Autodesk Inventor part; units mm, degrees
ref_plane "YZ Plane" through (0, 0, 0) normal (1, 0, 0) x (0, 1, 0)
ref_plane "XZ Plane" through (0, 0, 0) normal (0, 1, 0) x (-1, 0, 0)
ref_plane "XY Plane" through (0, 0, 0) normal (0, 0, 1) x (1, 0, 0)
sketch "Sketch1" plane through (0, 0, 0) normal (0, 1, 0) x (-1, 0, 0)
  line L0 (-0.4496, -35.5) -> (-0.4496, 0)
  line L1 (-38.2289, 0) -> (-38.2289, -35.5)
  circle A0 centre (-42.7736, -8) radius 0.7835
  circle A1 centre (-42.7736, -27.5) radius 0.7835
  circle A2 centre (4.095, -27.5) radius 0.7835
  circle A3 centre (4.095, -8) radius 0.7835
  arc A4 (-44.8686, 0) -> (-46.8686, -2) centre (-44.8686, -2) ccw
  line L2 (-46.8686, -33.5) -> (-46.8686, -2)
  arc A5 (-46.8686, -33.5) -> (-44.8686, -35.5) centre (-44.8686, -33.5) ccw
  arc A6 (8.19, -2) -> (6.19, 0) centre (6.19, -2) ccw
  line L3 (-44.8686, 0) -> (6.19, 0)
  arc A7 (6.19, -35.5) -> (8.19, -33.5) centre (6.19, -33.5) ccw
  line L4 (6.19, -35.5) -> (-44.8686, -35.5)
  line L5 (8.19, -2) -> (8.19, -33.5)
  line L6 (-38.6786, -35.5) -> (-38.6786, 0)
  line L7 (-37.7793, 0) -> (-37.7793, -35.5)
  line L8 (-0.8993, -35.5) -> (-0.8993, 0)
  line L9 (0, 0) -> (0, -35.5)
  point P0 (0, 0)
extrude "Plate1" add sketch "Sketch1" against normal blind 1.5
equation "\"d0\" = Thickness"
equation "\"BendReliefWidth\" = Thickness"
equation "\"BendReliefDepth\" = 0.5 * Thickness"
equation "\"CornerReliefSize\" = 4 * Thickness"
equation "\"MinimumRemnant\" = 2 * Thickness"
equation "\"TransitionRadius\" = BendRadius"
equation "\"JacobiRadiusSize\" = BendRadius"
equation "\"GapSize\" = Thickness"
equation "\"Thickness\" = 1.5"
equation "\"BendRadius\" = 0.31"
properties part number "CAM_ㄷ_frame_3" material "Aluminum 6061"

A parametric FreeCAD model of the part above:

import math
import FreeCAD as App
import Part
import Sketcher
Q = App.Units.Quantity

doc = App.newDocument("Part")
body = doc.addObject("PartDesign::Body", "Body")

# Sketch on XZ plane
sketch1 = doc.addObject("Sketcher::SketchObject", "Sketch")
body.addObject(sketch1)
sketch1.AttachmentSupport = (doc.XZ_Plane, [""])
sketch1.MapMode = "FlatFace"
sketch1.addGeometry([
    Part.ArcOfCircle(Part.Circle(App.Vector(-6.2, -33.5, 0), App.Vector(0, 0, 1), 2), math.radians(180), math.radians(270)),  # 0
    Part.LineSegment(App.Vector(-8.2, -33.5, 0), App.Vector(-8.2, -2, 0)),  # 1
    Part.ArcOfCircle(Part.Circle(App.Vector(-6.2, -2, 0), App.Vector(0, 0, 1), 2), math.radians(90), math.radians(180)),  # 2
    Part.LineSegment(App.Vector(-6.2, 0, 0), App.Vector(44.9, 0, 0)),  # 3
    Part.ArcOfCircle(Part.Circle(App.Vector(44.9, -2, 0), App.Vector(0, 0, 1), 2), math.radians(0), math.radians(90)),  # 4
    Part.LineSegment(App.Vector(46.9, -2, 0), App.Vector(46.9, -33.5, 0)),  # 5
    Part.ArcOfCircle(Part.Circle(App.Vector(44.9, -33.5, 0), App.Vector(0, 0, 1), 2), math.radians(-90), math.radians(0)),  # 6
    Part.LineSegment(App.Vector(44.9, -35.5, 0), App.Vector(-6.2, -35.5, 0)),  # 7
    Part.Circle(App.Vector(-4.1, -8, 0), App.Vector(0, 0, 1), 0.8),  # 8
    Part.Circle(App.Vector(-4.1, -27.5, 0), App.Vector(0, 0, 1), 0.8),  # 9
    Part.Circle(App.Vector(42.8, -8, 0), App.Vector(0, 0, 1), 0.8),  # 10
    Part.Circle(App.Vector(42.8, -27.5, 0), App.Vector(0, 0, 1), 0.8),  # 11
], False)
sketch1.addConstraint([
    Sketcher.Constraint("Tangent", 0, 1, 1, 1),
    Sketcher.Constraint("Tangent", 1, 2, 2, 2),
    Sketcher.Constraint("Tangent", 2, 1, 3, 1),
    Sketcher.Constraint("Tangent", 3, 2, 4, 2),
    Sketcher.Constraint("Tangent", 4, 1, 5, 1),
    Sketcher.Constraint("Tangent", 5, 2, 6, 2),
    Sketcher.Constraint("Tangent", 6, 1, 7, 1),
    Sketcher.Constraint("Tangent", 7, 2, 0, 2),
    Sketcher.Constraint("Vertical", 1),
    Sketcher.Constraint("Horizontal", 3),
    Sketcher.Constraint("Vertical", 5),
    Sketcher.Constraint("Horizontal", 7),
    Sketcher.Constraint("Equal", 0, 2),
    Sketcher.Constraint("Equal", 2, 4),
    Sketcher.Constraint("Equal", 4, 6),
    Sketcher.Constraint("Equal", 8, 9),
    Sketcher.Constraint("Equal", 9, 10),
    Sketcher.Constraint("Equal", 10, 11),
    Sketcher.Constraint("PointOnObject", 2, 1, -1),
    Sketcher.Constraint("Horizontal", 8, 3, 10, 3),
    Sketcher.Constraint("Horizontal", 9, 3, 11, 3),
    Sketcher.Constraint("Vertical", 8, 3, 9, 3),
    Sketcher.Constraint("Vertical", 10, 3, 11, 3),
    Sketcher.Constraint("Radius", 0, Q("2 mm")),
    Sketcher.Constraint("Diameter", 8, Q("1.567 mm")),
    Sketcher.Constraint("DistanceY", 1, 1, 1, 2, Q("31.5 mm")),
    Sketcher.Constraint("DistanceY", 8, 3, -1, 1, Q("8 mm")),
    Sketcher.Constraint("DistanceY", 0, 3, 9, 3, Q("6 mm")),
    Sketcher.Constraint("DistanceX", 0, 3, -1, 1, Q("6.19 mm")),
    Sketcher.Constraint("DistanceX", 3, 1, 3, 2, Q("51.0586 mm")),
    Sketcher.Constraint("DistanceX", 8, 3, -1, 1, Q("4.095 mm")),
    Sketcher.Constraint("DistanceX", 10, 3, 4, 3, Q("2.095 mm")),
])
pad1 = doc.addObject("PartDesign::Pad", "Pad")
body.addObject(pad1)
pad1.Profile = sketch1
pad1.Length = 1.5

doc.recompute()
